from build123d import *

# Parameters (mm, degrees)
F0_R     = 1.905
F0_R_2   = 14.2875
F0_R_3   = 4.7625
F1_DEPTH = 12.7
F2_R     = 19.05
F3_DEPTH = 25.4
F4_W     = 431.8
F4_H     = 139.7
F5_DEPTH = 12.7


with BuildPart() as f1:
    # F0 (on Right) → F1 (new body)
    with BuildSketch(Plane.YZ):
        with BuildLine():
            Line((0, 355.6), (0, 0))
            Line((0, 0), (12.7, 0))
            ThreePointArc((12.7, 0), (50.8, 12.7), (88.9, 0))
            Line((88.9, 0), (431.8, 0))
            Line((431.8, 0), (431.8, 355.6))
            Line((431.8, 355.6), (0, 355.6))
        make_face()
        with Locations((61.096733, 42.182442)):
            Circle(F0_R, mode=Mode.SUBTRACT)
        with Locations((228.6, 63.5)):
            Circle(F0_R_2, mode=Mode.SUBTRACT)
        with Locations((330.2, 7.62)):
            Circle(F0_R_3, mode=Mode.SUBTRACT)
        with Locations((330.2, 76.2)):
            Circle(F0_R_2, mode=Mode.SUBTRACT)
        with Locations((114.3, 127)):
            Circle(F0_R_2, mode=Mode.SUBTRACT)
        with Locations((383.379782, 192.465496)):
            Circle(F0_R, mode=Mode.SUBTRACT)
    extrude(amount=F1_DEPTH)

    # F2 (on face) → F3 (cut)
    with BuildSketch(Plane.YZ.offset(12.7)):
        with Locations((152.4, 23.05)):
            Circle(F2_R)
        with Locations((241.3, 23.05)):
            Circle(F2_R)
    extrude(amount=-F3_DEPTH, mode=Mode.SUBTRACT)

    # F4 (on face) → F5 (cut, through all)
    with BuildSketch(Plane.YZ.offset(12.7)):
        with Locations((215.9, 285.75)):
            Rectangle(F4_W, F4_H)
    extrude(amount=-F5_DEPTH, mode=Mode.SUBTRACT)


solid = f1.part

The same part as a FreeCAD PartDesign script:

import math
import FreeCAD as App
import Part
import Sketcher
from FreeCAD import Vector
Q = App.Units.Quantity


def add_polygon(sketch, points):
    """Adds a closed chain of lines whose ends are joined by coincident constraints."""
    first, n = sketch.GeometryCount, len(points)
    for a, b in zip(points, points[1:] + points[:1]):
        sketch.addGeometry(Part.LineSegment(App.Vector(*a, 0), App.Vector(*b, 0)), False)
    for i in range(n):
        sketch.addConstraint(Sketcher.Constraint("Coincident", first + i, 2, first + (i + 1) % n, 1))

doc = App.newDocument("Part")
body = doc.addObject("PartDesign::Body", "Body")

# Sketch on YZ plane
sketch1 = body.newObject("Sketcher::SketchObject", "Sketch")
sketch1.AttachmentSupport = (doc.getObject("YZ_Plane"), [""])
sketch1.MapMode = "FlatFace"
sketch1.addGeometry([
    Part.LineSegment(Vector(0, 355.6, 0), Vector(0, 0, 0)),  # 0
    Part.LineSegment(Vector(0, 0, 0), Vector(12.7, 0, 0)),  # 1
    Part.ArcOfCircle(Part.Circle(Vector(50.8, -50.8, 0), Vector(0, 0, 1), 63.5), math.radians(53), math.radians(127)),  # 2
    Part.LineSegment(Vector(88.9, 0, 0), Vector(431.8, 0, 0)),  # 3
    Part.LineSegment(Vector(431.8, 0, 0), Vector(431.8, 355.6, 0)),  # 4
    Part.LineSegment(Vector(431.8, 355.6, 0), Vector(0, 355.6, 0)),  # 5
    Part.Circle(Vector(61.1, 42.2, 0), Vector(0, 0, 1), 1.9),  # 6
    Part.Circle(Vector(330.2, 7.6, 0), Vector(0, 0, 1), 4.8),  # 7
    Part.Circle(Vector(228.6, 63.5, 0), Vector(0, 0, 1), 14.3),  # 8
    Part.Circle(Vector(330.2, 76.2, 0), Vector(0, 0, 1), 14.3),  # 9
    Part.Circle(Vector(114.3, 127, 0), Vector(0, 0, 1), 14.3),  # 10
    Part.Circle(Vector(383.4, 192.5, 0), Vector(0, 0, 1), 1.9),  # 11
], False)
sketch1.addConstraint([
    Sketcher.Constraint("Coincident", 0, 2, 1, 1),
    Sketcher.Constraint("Coincident", 1, 2, 2, 2),
    Sketcher.Constraint("Coincident", 2, 1, 3, 1),
    Sketcher.Constraint("Coincident", 3, 2, 4, 1),
    Sketcher.Constraint("Coincident", 4, 2, 5, 1),
    Sketcher.Constraint("Coincident", 5, 2, 0, 1),
    Sketcher.Constraint("Vertical", 0),
    Sketcher.Constraint("Horizontal", 1),
    Sketcher.Constraint("Horizontal", 3),
    Sketcher.Constraint("Vertical", 4),
    Sketcher.Constraint("Horizontal", 5),
    Sketcher.Constraint("Coincident", 0, 2, -1, 1),
    Sketcher.Constraint("Equal", 8, 9),
    Sketcher.Constraint("Equal", 9, 10),
    Sketcher.Constraint("Equal", 6, 11),
    Sketcher.Constraint("PointOnObject", 2, 1, -1),
    Sketcher.Constraint("Vertical", 7, 3, 9, 3),
    Sketcher.Constraint("Radius", 2, Q("2.5 in")),
    Sketcher.Constraint("Diameter", 6, Q("0.15 in")),
    Sketcher.Constraint("DistanceX", 5, 2, 5, 1, Q("17 in")),
    Sketcher.Constraint("DistanceY", 0, 2, 0, 1, Q("14 in")),
    Sketcher.Constraint("Diameter", 7, Q("0.375 in")),
    Sketcher.Constraint("Diameter", 8, Q("1.125 in")),
    Sketcher.Constraint("DistanceX", 1, 1, 1, 2, Q("0.5 in")),
    Sketcher.Constraint("DistanceX", 3, 1, 3, 2, Q("13.5 in")),
    Sketcher.Constraint("DistanceX", -1, 1, 7, 3, Q("13 in")),
    Sketcher.Constraint("DistanceX", -1, 1, 8, 3, Q("9 in")),
    Sketcher.Constraint("DistanceY", -1, 1, 9, 3, Q("3 in")),
    Sketcher.Constraint("DistanceY", -1, 1, 10, 3, Q("5 in")),
    Sketcher.Constraint("DistanceX", 1, 2, 10, 3, Q("4 in")),
    Sketcher.Constraint("DistanceY", -1, 1, 7, 3, Q("0.3 in")),
    Sketcher.Constraint("DistanceY", -1, 1, 8, 3, Q("2.5 in")),
    Sketcher.Constraint("DistanceX", -1, 1, 11, 3, Q("383.379782 mm")),
    Sketcher.Constraint("DistanceY", 2, 3, 6, 3, Q("92.982442 mm")),
    Sketcher.Constraint("DistanceX", 6, 3, 11, 3, Q("322.283049 mm")),
    Sketcher.Constraint("DistanceY", -1, 1, 11, 3, Q("192.465496 mm")),
])
pad1 = body.newObject("PartDesign::Pad", "Pad")
pad1.Profile = sketch1
pad1.Length = Q("0.5 in")

# Sketch on YZ plane
sketch2 = body.newObject("Sketcher::SketchObject", "Sketch001")
sketch2.AttachmentSupport = (doc.getObject("YZ_Plane"), [""])
sketch2.MapMode = "FlatFace"
sketch2.AttachmentOffset = App.Placement(Vector(0, 0, 0.5 * 25.4), App.Rotation())
sketch2.addGeometry([
    Part.Circle(Vector(152, 23, 0), Vector(0, 0, 1), 19),
    Part.Circle(Vector(241, 23, 0), Vector(0, 0, 1), 19),
], False)
sketch2.addConstraint([
    Sketcher.Constraint("Equal", 0, 1),
    Sketcher.Constraint("Horizontal", 0, 3, 1, 3),
    Sketcher.Constraint("Diameter", 0, Q("1.5 in")),
    Sketcher.Constraint("DistanceX", -1, 1, 0, 3, Q("6 in")),
    Sketcher.Constraint("DistanceX", -1, 1, 1, 3, Q("9.5 in")),
    Sketcher.Constraint("DistanceY", -1, 1, 0, 3, Q("23.05 mm")),
])
pocket1 = body.newObject("PartDesign::Pocket", "Pocket")
pocket1.Profile = sketch2
pocket1.Length = Q("1 in")

# Sketch on YZ plane
sketch3 = body.newObject("Sketcher::SketchObject", "Sketch002")
sketch3.AttachmentSupport = (doc.getObject("YZ_Plane"), [""])
sketch3.MapMode = "FlatFace"
sketch3.AttachmentOffset = App.Placement(Vector(0, 0, 0.5 * 25.4), App.Rotation())
add_polygon(sketch3, [(0, 356), (0, 216), (432, 216), (432, 356)])  # lines 0-3
sketch3.addConstraint([
    Sketcher.Constraint("Vertical", 0),
    Sketcher.Constraint("Horizontal", 1),
    Sketcher.Constraint("Vertical", 2),
    Sketcher.Constraint("Horizontal", 3),
    Sketcher.Constraint("PointOnObject", 0, 2, -2),
    Sketcher.Constraint("DistanceX", 1, 1, 1, 2, Q("17 in")),
    Sketcher.Constraint("DistanceY", 0, 2, 0, 1, Q("5.5 in")),
    Sketcher.Constraint("DistanceY", -1, 1, 2, 2, Q("14 in")),
])
pocket2 = body.newObject("PartDesign::Pocket", "Pocket001")
pocket2.Profile = sketch3
pocket2.Type = "ThroughAll"

doc.recompute()
